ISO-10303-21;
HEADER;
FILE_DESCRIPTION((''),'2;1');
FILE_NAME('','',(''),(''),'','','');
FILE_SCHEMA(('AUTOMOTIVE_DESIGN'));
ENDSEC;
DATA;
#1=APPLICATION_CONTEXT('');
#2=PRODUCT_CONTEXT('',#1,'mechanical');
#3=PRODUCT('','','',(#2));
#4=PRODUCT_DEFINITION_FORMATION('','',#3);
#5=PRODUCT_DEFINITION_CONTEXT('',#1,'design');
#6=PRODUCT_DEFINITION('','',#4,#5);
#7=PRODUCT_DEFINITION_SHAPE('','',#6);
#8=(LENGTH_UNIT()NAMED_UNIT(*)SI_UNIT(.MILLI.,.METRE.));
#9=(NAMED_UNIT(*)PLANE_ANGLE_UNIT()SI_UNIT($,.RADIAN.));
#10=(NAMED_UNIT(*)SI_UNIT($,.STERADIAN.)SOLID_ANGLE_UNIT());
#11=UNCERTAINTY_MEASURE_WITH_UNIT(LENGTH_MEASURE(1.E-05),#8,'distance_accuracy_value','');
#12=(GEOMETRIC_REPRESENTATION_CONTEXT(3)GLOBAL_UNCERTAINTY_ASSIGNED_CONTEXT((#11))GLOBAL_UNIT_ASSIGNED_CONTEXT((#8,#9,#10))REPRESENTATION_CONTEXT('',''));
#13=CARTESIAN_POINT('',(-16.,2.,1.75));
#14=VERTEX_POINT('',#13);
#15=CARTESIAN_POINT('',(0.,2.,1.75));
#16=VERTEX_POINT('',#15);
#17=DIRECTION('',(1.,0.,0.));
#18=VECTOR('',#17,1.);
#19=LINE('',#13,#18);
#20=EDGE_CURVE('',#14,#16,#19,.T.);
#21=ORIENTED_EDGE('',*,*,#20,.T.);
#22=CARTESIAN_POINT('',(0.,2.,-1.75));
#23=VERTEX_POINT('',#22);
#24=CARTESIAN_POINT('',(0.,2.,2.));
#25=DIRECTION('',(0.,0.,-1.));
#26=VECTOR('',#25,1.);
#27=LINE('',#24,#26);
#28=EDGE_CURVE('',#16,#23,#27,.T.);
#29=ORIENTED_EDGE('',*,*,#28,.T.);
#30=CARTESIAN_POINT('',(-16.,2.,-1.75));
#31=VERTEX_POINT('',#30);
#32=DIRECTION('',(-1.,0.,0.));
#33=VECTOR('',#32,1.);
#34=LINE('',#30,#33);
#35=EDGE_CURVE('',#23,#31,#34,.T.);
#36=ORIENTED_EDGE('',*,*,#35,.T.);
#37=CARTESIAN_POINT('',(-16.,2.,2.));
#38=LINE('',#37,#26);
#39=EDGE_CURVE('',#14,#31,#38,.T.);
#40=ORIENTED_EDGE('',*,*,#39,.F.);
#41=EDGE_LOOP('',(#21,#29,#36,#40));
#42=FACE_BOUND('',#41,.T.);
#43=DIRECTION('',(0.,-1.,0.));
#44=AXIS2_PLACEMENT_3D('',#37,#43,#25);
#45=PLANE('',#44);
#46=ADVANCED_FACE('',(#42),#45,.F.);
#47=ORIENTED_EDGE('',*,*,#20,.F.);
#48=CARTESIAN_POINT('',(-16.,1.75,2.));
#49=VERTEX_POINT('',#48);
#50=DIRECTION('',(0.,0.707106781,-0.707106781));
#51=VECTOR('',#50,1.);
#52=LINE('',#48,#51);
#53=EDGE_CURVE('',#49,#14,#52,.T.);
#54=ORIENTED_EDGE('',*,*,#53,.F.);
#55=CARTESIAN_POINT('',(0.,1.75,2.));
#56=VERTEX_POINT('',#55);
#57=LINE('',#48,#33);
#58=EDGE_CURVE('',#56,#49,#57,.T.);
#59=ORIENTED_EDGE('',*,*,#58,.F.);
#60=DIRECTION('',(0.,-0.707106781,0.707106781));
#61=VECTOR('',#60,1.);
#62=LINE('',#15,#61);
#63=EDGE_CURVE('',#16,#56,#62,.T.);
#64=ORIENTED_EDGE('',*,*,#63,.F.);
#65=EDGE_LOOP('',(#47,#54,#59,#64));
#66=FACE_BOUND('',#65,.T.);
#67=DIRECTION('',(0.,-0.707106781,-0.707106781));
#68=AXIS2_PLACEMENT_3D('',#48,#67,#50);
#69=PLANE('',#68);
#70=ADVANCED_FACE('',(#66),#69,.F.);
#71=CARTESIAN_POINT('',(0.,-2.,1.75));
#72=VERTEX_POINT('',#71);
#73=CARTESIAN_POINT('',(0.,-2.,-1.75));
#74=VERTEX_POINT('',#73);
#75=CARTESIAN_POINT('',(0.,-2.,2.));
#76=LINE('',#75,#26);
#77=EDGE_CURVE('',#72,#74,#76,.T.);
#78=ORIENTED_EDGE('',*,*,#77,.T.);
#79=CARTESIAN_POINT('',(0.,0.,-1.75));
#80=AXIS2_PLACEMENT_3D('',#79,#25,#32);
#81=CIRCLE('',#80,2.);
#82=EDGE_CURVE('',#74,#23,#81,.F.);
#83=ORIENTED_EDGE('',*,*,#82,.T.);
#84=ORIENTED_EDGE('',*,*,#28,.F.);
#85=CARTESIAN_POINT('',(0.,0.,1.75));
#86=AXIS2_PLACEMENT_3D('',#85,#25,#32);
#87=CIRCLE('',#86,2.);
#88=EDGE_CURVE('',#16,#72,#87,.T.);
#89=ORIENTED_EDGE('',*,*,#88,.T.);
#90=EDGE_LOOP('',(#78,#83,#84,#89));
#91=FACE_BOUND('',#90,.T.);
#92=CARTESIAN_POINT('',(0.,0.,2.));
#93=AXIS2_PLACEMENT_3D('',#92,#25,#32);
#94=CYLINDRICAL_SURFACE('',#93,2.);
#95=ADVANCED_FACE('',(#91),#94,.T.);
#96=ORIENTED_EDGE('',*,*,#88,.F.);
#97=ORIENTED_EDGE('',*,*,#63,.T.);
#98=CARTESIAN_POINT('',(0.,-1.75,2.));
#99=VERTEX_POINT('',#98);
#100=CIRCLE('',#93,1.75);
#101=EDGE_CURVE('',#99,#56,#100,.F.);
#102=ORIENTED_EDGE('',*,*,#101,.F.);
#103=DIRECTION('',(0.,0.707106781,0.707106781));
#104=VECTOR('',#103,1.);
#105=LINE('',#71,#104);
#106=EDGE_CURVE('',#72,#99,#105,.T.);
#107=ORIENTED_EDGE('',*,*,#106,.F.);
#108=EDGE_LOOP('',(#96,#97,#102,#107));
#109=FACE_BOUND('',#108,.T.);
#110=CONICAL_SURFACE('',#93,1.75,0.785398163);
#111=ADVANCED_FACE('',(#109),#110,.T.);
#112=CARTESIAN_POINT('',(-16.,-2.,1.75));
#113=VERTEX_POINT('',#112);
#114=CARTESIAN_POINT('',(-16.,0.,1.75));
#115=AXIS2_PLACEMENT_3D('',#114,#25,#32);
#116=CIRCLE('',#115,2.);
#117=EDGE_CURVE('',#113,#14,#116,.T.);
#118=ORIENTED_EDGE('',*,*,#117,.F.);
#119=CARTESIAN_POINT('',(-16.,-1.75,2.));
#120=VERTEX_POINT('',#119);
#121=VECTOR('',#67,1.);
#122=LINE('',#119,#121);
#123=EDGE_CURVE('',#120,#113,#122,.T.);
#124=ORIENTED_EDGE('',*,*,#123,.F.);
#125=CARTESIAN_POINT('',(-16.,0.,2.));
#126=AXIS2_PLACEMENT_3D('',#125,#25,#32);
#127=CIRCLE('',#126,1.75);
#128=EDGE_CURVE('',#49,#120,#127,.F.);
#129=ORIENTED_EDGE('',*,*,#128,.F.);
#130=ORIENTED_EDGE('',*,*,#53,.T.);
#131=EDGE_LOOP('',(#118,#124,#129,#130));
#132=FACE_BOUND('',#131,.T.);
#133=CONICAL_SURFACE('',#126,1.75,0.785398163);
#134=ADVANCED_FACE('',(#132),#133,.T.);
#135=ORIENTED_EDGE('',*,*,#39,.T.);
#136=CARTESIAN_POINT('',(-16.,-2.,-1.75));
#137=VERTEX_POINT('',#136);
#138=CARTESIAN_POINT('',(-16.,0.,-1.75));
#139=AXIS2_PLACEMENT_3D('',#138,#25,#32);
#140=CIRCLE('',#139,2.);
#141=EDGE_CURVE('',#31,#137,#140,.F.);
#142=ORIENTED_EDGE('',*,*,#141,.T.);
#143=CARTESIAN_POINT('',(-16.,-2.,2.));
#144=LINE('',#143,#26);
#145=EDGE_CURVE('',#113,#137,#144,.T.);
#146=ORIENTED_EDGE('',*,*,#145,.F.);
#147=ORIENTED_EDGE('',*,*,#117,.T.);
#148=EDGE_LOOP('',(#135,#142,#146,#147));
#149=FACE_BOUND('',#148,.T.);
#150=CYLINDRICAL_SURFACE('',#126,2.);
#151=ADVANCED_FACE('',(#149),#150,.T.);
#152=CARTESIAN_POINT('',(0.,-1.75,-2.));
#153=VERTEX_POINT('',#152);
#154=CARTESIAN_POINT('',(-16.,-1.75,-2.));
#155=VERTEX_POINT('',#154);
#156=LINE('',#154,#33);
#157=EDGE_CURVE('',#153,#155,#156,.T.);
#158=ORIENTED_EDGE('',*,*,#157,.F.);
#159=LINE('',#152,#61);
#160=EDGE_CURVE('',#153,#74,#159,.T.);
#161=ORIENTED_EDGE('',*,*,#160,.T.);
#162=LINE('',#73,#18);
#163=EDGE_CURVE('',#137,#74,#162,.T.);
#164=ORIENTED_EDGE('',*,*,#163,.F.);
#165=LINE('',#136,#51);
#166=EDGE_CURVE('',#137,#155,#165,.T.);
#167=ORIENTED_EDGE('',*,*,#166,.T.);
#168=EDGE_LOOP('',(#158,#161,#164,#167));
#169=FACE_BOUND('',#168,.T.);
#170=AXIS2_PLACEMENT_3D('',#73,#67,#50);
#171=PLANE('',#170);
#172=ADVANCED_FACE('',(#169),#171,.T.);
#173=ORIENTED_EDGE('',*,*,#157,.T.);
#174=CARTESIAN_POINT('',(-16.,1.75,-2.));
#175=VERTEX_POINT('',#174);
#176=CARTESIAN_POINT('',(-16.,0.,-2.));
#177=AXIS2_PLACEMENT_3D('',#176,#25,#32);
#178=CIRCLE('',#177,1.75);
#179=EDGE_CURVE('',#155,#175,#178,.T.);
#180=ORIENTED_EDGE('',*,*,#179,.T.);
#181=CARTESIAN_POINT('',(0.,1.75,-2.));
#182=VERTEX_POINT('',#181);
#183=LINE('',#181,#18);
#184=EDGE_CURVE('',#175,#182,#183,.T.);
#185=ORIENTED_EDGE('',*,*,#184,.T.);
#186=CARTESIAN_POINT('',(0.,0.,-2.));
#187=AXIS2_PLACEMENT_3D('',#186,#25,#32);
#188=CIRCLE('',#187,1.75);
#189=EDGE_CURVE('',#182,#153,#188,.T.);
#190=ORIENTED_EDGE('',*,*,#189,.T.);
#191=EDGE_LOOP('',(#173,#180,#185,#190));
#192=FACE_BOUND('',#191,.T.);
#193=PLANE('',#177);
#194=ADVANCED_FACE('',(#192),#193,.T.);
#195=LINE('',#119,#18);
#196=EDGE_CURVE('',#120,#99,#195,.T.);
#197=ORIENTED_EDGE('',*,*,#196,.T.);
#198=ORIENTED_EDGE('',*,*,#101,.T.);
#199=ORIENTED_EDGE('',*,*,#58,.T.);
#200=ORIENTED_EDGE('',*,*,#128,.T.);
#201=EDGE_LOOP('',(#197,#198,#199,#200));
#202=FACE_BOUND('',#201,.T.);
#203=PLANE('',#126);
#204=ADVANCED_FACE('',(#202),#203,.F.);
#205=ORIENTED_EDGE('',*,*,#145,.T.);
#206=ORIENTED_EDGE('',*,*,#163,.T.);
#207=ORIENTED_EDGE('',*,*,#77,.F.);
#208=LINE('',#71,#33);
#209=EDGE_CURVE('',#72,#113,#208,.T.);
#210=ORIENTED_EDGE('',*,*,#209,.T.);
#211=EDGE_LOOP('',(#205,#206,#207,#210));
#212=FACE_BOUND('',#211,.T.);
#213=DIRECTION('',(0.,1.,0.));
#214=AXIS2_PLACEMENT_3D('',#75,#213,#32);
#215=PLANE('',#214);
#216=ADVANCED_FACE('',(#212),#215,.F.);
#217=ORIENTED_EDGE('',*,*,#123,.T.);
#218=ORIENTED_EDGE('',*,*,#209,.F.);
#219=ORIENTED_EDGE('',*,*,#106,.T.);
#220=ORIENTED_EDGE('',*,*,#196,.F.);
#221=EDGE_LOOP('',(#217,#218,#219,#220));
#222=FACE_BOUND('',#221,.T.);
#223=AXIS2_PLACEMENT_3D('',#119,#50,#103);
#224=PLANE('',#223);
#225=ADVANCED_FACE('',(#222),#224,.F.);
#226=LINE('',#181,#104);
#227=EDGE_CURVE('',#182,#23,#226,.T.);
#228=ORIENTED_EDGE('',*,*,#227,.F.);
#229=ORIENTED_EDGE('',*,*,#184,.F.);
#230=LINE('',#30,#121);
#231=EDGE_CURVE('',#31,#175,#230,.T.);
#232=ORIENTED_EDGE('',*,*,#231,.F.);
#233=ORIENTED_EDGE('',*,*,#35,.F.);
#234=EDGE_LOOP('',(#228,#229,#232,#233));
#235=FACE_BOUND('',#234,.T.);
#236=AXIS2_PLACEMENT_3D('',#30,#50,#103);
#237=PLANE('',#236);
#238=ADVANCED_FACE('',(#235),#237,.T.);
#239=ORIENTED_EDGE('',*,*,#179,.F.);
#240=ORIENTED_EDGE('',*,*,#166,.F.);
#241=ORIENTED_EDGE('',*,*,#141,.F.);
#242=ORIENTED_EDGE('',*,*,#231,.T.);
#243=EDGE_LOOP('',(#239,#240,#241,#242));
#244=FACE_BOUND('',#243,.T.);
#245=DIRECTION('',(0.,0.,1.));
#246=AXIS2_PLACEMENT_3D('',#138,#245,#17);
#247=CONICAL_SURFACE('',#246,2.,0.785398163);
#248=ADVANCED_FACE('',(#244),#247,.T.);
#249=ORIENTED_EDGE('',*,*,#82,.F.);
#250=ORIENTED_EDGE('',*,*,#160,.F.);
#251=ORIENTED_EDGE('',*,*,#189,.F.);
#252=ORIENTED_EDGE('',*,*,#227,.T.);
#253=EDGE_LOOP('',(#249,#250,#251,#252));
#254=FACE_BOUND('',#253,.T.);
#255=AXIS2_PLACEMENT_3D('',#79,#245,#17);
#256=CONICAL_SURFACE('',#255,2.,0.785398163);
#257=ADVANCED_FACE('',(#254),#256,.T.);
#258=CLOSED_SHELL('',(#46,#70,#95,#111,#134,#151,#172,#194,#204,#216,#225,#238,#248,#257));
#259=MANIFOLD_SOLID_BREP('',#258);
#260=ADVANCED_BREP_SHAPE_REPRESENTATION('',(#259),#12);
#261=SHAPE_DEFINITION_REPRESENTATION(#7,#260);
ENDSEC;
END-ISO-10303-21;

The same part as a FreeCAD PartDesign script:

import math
import FreeCAD as App
import Part
import Sketcher
from FreeCAD import Vector
Q = App.Units.Quantity


def edges_at(feature, points):
    """Names of the edges that pass closest to the given points."""
    edges = feature.Shape.Edges
    near = lambda p: min(range(len(edges)), key=lambda i: edges[i].distToShape(Part.Vertex(*p))[0])
    return sorted({f"Edge{near(p) + 1}" for p in points})

doc = App.newDocument("Part")
params = doc.addObject("Spreadsheet::Sheet", "Params")
for row, (alias, value) in enumerate([
    ("sketch1_radius", "2 mm"),
    ("sketch1_width", "16 mm"),
    ("pad1_length", "4 mm"),
    ("chamfer_size", "0.25 mm"),
], start=1):
    params.set(f"A{row}", alias)
    params.set(f"B{row}", "=" + value)
    params.setAlias(f"B{row}", alias)

body = doc.addObject("PartDesign::Body", "Body")

# Sketch on XY plane
sketch1 = body.newObject("Sketcher::SketchObject", "Sketch")
sketch1.AttachmentSupport = (doc.getObject("XY_Plane"), [""])
sketch1.MapMode = "FlatFace"
sketch1.addGeometry(Part.LineSegment(Vector(0, 2, 0), Vector(-16, 2, 0)), False)
sketch1.addGeometry(Part.ArcOfCircle(Part.Circle(Vector(-16, 0, 0), Vector(0, 0, 1), 2), math.radians(90), math.radians(270)), False)
sketch1.addGeometry(Part.LineSegment(Vector(-16, -2, 0), Vector(0, -2, 0)), False)
sketch1.addGeometry(Part.ArcOfCircle(Part.Circle(Vector(0, 0, 0), Vector(0, 0, 1), 2), math.radians(-90), math.radians(90)), False)
sketch1.addConstraint(Sketcher.Constraint("Tangent", 0, 2, 1, 1))
sketch1.addConstraint(Sketcher.Constraint("Tangent", 1, 2, 2, 1))
sketch1.addConstraint(Sketcher.Constraint("Tangent", 2, 2, 3, 1))
sketch1.addConstraint(Sketcher.Constraint("Tangent", 3, 2, 0, 1))
sketch1.addConstraint(Sketcher.Constraint("Horizontal", 0))
sketch1.addConstraint(Sketcher.Constraint("Horizontal", 2))
sketch1.addConstraint(Sketcher.Constraint("Coincident", 3, 3, -1, 1))
sketch1.addConstraint(Sketcher.Constraint("Radius", 1, Q("2 mm")))
sketch1.addConstraint(Sketcher.Constraint("DistanceX", 0, 2, 0, 1, Q("16 mm")))
sketch1.setExpression("Constraints[7]", "Params.sketch1_radius")
sketch1.setExpression("Constraints[8]", "Params.sketch1_width")
pad1 = body.newObject("PartDesign::Pad", "Pad")
pad1.Profile = sketch1
pad1.setExpression("Length", "Params.pad1_length")
pad1.Midplane = True
doc.recompute()

chamfer = body.newObject("PartDesign::Chamfer", "Chamfer")
chamfer.Base = (pad1, edges_at(pad1, [
    (2, 0, 2),
    (-8, 2, 2),
    (-18, 0, 2),
    (-8, 2, -2),
    (2, 0, -2),
    (-8, -2, -2),
    (-18, 0, -2),
    (-8, -2, 2),
]))
chamfer.setExpression("Size", "Params.chamfer_size")

doc.recompute()
